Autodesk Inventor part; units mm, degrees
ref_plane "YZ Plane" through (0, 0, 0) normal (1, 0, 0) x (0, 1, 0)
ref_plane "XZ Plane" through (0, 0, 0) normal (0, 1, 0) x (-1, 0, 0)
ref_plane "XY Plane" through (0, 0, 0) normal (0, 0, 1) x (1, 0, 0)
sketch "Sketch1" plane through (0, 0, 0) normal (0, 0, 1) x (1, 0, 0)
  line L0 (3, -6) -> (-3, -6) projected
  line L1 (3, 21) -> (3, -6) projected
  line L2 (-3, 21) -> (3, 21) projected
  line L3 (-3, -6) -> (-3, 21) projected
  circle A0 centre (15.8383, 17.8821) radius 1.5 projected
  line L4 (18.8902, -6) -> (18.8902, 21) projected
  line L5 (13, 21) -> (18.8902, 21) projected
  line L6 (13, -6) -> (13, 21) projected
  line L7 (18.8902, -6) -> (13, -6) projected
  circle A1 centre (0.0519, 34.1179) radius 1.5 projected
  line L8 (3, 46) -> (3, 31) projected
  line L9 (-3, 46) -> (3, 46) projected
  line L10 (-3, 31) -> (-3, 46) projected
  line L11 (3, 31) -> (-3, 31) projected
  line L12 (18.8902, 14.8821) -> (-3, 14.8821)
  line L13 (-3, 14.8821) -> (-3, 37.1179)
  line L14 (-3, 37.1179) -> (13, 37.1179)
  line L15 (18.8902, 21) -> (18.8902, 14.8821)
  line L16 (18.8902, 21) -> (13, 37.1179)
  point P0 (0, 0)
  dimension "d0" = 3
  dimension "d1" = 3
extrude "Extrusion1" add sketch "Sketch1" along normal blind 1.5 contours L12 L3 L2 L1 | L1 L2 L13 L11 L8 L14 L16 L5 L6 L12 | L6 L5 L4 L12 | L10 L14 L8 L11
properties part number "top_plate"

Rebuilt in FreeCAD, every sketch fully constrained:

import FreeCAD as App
import Part
import Sketcher
Q = App.Units.Quantity

doc = App.newDocument("Part")
params = doc.addObject("Spreadsheet::Sheet", "Params")
for row, (alias, value) in enumerate([
    ("sketch1_diameter", "3 mm"),
    ("sketch1_width", "16 mm"),
    ("pad1_length", "1.5 mm"),
], start=1):
    params.set(f"A{row}", alias)
    params.set(f"B{row}", "=" + value)
    params.setAlias(f"B{row}", alias)

body = doc.addObject("PartDesign::Body", "Body")

sketch1 = body.newObject("Sketcher::SketchObject", "Sketch")
sketch1.AttachmentSupport = (doc.getObject("XY_Plane"), [""])
sketch1.MapMode = "FlatFace"
sketch1.addGeometry([
    Part.LineSegment(App.Vector(-3, 14.9, 0), App.Vector(18.9, 14.9, 0)),
    Part.LineSegment(App.Vector(18.9, 14.9, 0), App.Vector(18.9, 21, 0)),
    Part.LineSegment(App.Vector(18.9, 21, 0), App.Vector(13, 37.1, 0)),
    Part.LineSegment(App.Vector(13, 37.1, 0), App.Vector(-3, 37.1, 0)),
    Part.LineSegment(App.Vector(-3, 37.1, 0), App.Vector(-3, 14.9, 0)),
    Part.Circle(App.Vector(15.8, 17.9, 0), App.Vector(0, 0, 1), 1.5),
    Part.Circle(App.Vector(0.1, 34.1, 0), App.Vector(0, 0, 1), 1.5),
], False)
sketch1.addConstraint([
    Sketcher.Constraint("Coincident", 0, 2, 1, 1),
    Sketcher.Constraint("Coincident", 1, 2, 2, 1),
    Sketcher.Constraint("Coincident", 2, 2, 3, 1),
    Sketcher.Constraint("Coincident", 3, 2, 4, 1),
    Sketcher.Constraint("Coincident", 4, 2, 0, 1),
    Sketcher.Constraint("Horizontal", 0),
    Sketcher.Constraint("Vertical", 1),
    Sketcher.Constraint("Horizontal", 3),
    Sketcher.Constraint("Vertical", 4),
    Sketcher.Constraint("Equal", 5, 6),
    Sketcher.Constraint("Diameter", 5, Q("3 mm")),
    Sketcher.Constraint("DistanceX", 3, 2, -1, 1, Q("3 mm")),
    Sketcher.Constraint("DistanceY", 0, 2, 5, 3, Q("3 mm")),
    Sketcher.Constraint("DistanceY", 6, 3, 2, 2, Q("3 mm")),
    Sketcher.Constraint("DistanceX", 3, 2, 3, 1, Q("16 mm")),
    Sketcher.Constraint("DistanceY", -1, 1, 1, 2, Q("21 mm")),
    Sketcher.Constraint("DistanceY", 1, 1, 1, 2, Q("6.118 mm")),
    Sketcher.Constraint("DistanceX", 0, 1, 0, 2, Q("21.8902 mm")),
    Sketcher.Constraint("DistanceY", 4, 2, 4, 1, Q("22.2358 mm")),
    Sketcher.Constraint("DistanceX", -1, 1, 6, 3, Q("0.052 mm")),
    Sketcher.Constraint("DistanceX", 5, 3, 0, 2, Q("3.052 mm")),
])
sketch1.setExpression("Constraints[10]", "Params.sketch1_diameter")
sketch1.setExpression("Constraints[14]", "Params.sketch1_width")
pad1 = body.newObject("PartDesign::Pad", "Pad")
pad1.Profile = sketch1
pad1.setExpression("Length", "Params.pad1_length")

doc.recompute()
